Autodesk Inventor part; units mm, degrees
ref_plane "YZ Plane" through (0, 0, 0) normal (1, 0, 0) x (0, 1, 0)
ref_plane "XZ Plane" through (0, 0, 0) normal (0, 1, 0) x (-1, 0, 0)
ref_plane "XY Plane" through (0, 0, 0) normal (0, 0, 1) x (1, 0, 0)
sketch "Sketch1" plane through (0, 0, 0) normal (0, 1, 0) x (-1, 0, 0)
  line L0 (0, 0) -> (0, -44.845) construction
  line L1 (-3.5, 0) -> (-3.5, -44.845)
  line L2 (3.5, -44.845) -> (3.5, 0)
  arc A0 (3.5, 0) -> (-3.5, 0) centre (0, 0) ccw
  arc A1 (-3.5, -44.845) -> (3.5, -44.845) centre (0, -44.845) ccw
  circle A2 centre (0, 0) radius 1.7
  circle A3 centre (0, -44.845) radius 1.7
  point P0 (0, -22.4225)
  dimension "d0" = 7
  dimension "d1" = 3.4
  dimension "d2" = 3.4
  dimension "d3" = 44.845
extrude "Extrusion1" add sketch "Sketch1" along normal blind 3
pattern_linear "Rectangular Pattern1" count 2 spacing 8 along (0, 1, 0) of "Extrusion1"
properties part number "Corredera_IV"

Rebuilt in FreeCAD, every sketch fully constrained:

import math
import FreeCAD as App
import Part
import Sketcher

V = App.Vector
Q = App.Units.Quantity

doc = App.newDocument("Part")
body = doc.addObject("PartDesign::Body", "Body")
body.AllowCompound = True

sketch1 = body.newObject("Sketcher::SketchObject", "Sketch")
sketch1.AttachmentSupport = (doc.getObject("XZ_Plane"), [""])
sketch1.MapMode = "FlatFace"
sketch1.addGeometry(Part.ArcOfCircle(Part.Circle(V(0, 0, 0), V(0, 0, 1), 3.5), math.radians(0), math.radians(180)), False)
sketch1.addGeometry(Part.LineSegment(V(3.5, 0, 0), V(3.5, -44.845, 0)), False)
sketch1.addGeometry(Part.ArcOfCircle(Part.Circle(V(0, -44.845, 0), V(0, 0, 1), 3.5), math.radians(180), math.radians(360)), False)
sketch1.addGeometry(Part.LineSegment(V(-3.5, -44.845, 0), V(-3.5, 0, 0)), False)
sketch1.addGeometry(Part.Circle(V(0, -44.845, 0), V(0, 0, 1), 1.7), False)
sketch1.addGeometry(Part.Circle(V(0, 0, 0), V(0, 0, 1), 1.7), False)
sketch1.addConstraint(Sketcher.Constraint("Tangent", 0, 1, 1, 1))
sketch1.addConstraint(Sketcher.Constraint("Tangent", 1, 2, 2, 2))
sketch1.addConstraint(Sketcher.Constraint("Tangent", 2, 1, 3, 1))
sketch1.addConstraint(Sketcher.Constraint("Tangent", 3, 2, 0, 2))
sketch1.addConstraint(Sketcher.Constraint("Vertical", 1))
sketch1.addConstraint(Sketcher.Constraint("Vertical", 3))
sketch1.addConstraint(Sketcher.Constraint("Coincident", 0, 3, -1, 1))
sketch1.addConstraint(Sketcher.Constraint("Coincident", 5, 3, -1, 1))
sketch1.addConstraint(Sketcher.Constraint("Coincident", 4, 3, 2, 3))
sketch1.addConstraint(Sketcher.Constraint("Equal", 4, 5))
sketch1.addConstraint(Sketcher.Constraint("Diameter", 4, Q("3.4 mm")))
sketch1.addConstraint(Sketcher.Constraint("Radius", 0, Q("3.5 mm")))
sketch1.addConstraint(Sketcher.Constraint("DistanceY", 1, 2, 1, 1, Q("44.845 mm")))
pad1 = body.newObject("PartDesign::Pad", "Pad")
pad1.Profile = sketch1
pad1.Length = 3
pad1.Reversed = True
doc.recompute()

linearpattern = body.newObject("PartDesign::LinearPattern", "LinearPattern")
linearpattern.Originals = [pad1]
linearpattern.Direction = (doc.getObject("Y_Axis"), [""])
linearpattern.Mode = "offset"
linearpattern.Offset = 8
linearpattern.Occurrences = 2
body.Tip = linearpattern

doc.recompute()
